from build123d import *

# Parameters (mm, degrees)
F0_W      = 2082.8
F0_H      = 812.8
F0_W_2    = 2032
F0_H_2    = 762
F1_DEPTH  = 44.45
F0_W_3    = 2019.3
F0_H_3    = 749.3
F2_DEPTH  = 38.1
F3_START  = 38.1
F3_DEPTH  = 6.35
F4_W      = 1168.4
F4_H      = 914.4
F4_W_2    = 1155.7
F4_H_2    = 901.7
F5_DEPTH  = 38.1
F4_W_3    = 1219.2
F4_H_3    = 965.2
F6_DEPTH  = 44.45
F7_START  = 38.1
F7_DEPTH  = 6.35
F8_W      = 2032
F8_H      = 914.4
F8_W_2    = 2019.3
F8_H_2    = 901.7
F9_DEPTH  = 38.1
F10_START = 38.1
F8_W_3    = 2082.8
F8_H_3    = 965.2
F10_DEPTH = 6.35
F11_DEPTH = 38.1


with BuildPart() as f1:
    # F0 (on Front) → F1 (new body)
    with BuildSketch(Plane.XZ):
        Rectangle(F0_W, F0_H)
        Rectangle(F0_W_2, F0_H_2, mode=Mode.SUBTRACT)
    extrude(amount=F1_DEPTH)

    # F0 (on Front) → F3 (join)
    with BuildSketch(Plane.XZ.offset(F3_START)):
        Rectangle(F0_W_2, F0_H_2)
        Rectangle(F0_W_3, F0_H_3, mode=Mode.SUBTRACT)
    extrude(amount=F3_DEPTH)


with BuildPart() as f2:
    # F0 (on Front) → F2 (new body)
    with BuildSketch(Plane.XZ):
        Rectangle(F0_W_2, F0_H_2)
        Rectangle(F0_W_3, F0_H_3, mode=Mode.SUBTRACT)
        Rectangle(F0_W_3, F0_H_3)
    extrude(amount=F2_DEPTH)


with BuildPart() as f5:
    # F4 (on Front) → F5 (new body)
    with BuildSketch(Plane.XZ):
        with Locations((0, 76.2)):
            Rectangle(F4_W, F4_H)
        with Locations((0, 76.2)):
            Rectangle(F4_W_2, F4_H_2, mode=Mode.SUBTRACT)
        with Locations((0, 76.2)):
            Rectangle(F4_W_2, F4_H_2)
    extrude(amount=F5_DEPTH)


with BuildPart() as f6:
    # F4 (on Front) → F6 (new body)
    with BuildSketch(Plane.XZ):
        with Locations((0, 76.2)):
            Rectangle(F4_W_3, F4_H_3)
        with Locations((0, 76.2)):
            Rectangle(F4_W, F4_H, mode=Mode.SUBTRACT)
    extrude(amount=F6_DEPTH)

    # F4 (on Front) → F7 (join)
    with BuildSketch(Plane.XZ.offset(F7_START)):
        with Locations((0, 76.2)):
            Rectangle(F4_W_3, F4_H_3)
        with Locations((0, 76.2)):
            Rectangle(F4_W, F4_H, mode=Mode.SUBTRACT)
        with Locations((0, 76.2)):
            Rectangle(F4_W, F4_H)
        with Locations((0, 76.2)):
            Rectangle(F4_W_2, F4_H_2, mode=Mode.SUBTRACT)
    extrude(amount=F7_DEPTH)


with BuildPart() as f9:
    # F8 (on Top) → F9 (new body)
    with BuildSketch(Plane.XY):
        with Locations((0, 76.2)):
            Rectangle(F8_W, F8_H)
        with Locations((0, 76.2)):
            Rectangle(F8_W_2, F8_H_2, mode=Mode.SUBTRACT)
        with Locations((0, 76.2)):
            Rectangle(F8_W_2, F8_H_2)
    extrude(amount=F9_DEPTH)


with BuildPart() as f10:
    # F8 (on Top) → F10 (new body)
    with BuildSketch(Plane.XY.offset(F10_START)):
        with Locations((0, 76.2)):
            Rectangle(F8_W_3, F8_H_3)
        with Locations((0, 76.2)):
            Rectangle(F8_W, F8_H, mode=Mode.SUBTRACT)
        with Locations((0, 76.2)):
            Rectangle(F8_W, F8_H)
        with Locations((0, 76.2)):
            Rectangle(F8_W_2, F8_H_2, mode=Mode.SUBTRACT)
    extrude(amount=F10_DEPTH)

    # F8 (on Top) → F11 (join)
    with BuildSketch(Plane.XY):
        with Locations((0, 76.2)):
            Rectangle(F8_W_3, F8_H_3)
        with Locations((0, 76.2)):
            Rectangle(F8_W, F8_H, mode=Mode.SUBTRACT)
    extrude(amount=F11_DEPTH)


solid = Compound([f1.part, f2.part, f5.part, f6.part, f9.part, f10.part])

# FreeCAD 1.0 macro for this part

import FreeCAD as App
import Part
import Sketcher
from FreeCAD import Vector
Q = App.Units.Quantity

doc = App.newDocument("Part")
body = doc.addObject("PartDesign::Body", "Body")

# Sketch on XZ plane
sketch1 = body.newObject("Sketcher::SketchObject", "Sketch")
sketch1.AttachmentSupport = (doc.getObject("XZ_Plane"), [""])
sketch1.MapMode = "FlatFace"
sketch1.addGeometry([
    Part.LineSegment(Vector(-1041, 406, 0), Vector(-1041, -406, 0)),  # 0
    Part.LineSegment(Vector(-1041, -406, 0), Vector(1041, -406, 0)),  # 1
    Part.LineSegment(Vector(1041, -406, 0), Vector(1041, 406, 0)),  # 2
    Part.LineSegment(Vector(1041, 406, 0), Vector(-1041, 406, 0)),  # 3
    Part.LineSegment(Vector(1016, -381, 0), Vector(-1016, -381, 0)),  # 4
    Part.LineSegment(Vector(-1016, -381, 0), Vector(-1016, 381, 0)),  # 5
    Part.LineSegment(Vector(-1016, 381, 0), Vector(1016, 381, 0)),  # 6
    Part.LineSegment(Vector(1016, 381, 0), Vector(1016, -381, 0)),  # 7
], False)
sketch1.addConstraint([
    Sketcher.Constraint("Coincident", 0, 2, 1, 1),
    Sketcher.Constraint("Coincident", 1, 2, 2, 1),
    Sketcher.Constraint("Coincident", 2, 2, 3, 1),
    Sketcher.Constraint("Coincident", 3, 2, 0, 1),
    Sketcher.Constraint("Coincident", 4, 2, 5, 1),
    Sketcher.Constraint("Coincident", 5, 2, 6, 1),
    Sketcher.Constraint("Coincident", 6, 2, 7, 1),
    Sketcher.Constraint("Coincident", 7, 2, 4, 1),
    Sketcher.Constraint("Vertical", 0),
    Sketcher.Constraint("Horizontal", 1),
    Sketcher.Constraint("Vertical", 2),
    Sketcher.Constraint("Horizontal", 3),
    Sketcher.Constraint("Horizontal", 4),
    Sketcher.Constraint("Vertical", 5),
    Sketcher.Constraint("Horizontal", 6),
    Sketcher.Constraint("Vertical", 7),
    Sketcher.Constraint("Symmetric", 0, 2, 2, 2, -1, 1),
    Sketcher.Constraint("Symmetric", 4, 2, 6, 2, -1, 1),
    Sketcher.Constraint("DistanceX", 1, 1, 1, 2, Q("82 in")),
    Sketcher.Constraint("DistanceX", 4, 2, 4, 1, Q("80 in")),
    Sketcher.Constraint("DistanceY", 0, 2, 0, 1, Q("32 in")),
    Sketcher.Constraint("DistanceY", 5, 1, 5, 2, Q("30 in")),
])
pad1 = body.newObject("PartDesign::Pad", "Pad")
pad1.Profile = sketch1
pad1.Length = Q("1.75 in")

# Sketch on XZ plane
sketch2 = body.newObject("Sketcher::SketchObject", "Sketch001")
sketch2.AttachmentSupport = (doc.getObject("XZ_Plane"), [""])
sketch2.MapMode = "FlatFace"
sketch2.AttachmentOffset = App.Placement(Vector(0, 0, 1.5 * 25.4), App.Rotation())
sketch2.addGeometry([
    Part.LineSegment(Vector(-1016, 381, 0), Vector(-1016, -381, 0)),  # 0
    Part.LineSegment(Vector(-1016, -381, 0), Vector(1016, -381, 0)),  # 1
    Part.LineSegment(Vector(1016, -381, 0), Vector(1016, 381, 0)),  # 2
    Part.LineSegment(Vector(1016, 381, 0), Vector(-1016, 381, 0)),  # 3
    Part.LineSegment(Vector(1010, -375, 0), Vector(-1010, -375, 0)),  # 4
    Part.LineSegment(Vector(-1010, -375, 0), Vector(-1010, 375, 0)),  # 5
    Part.LineSegment(Vector(-1010, 375, 0), Vector(1010, 375, 0)),  # 6
    Part.LineSegment(Vector(1010, 375, 0), Vector(1010, -375, 0)),  # 7
], False)
sketch2.addConstraint([
    Sketcher.Constraint("Coincident", 0, 2, 1, 1),
    Sketcher.Constraint("Coincident", 1, 2, 2, 1),
    Sketcher.Constraint("Coincident", 2, 2, 3, 1),
    Sketcher.Constraint("Coincident", 3, 2, 0, 1),
    Sketcher.Constraint("Coincident", 4, 2, 5, 1),
    Sketcher.Constraint("Coincident", 5, 2, 6, 1),
    Sketcher.Constraint("Coincident", 6, 2, 7, 1),
    Sketcher.Constraint("Coincident", 7, 2, 4, 1),
    Sketcher.Constraint("Vertical", 0),
    Sketcher.Constraint("Horizontal", 1),
    Sketcher.Constraint("Vertical", 2),
    Sketcher.Constraint("Horizontal", 3),
    Sketcher.Constraint("Horizontal", 4),
    Sketcher.Constraint("Vertical", 5),
    Sketcher.Constraint("Horizontal", 6),
    Sketcher.Constraint("Vertical", 7),
    Sketcher.Constraint("Symmetric", 0, 2, 2, 2, -1, 1),
    Sketcher.Constraint("Symmetric", 4, 2, 6, 2, -1, 1),
    Sketcher.Constraint("DistanceX", 1, 1, 1, 2, Q("80 in")),
    Sketcher.Constraint("DistanceY", 0, 2, 0, 1, Q("30 in")),
    Sketcher.Constraint("DistanceX", 4, 2, 4, 1, Q("79.5 in")),
    Sketcher.Constraint("DistanceY", 5, 1, 5, 2, Q("29.5 in")),
])
pad2 = body.newObject("PartDesign::Pad", "Pad001")
pad2.Profile = sketch2
pad2.Length = Q("0.25 in")
body2 = doc.addObject("PartDesign::Body", "Body001")

# Sketch on XZ plane
sketch3 = body2.newObject("Sketcher::SketchObject", "Sketch002")
sketch3.AttachmentSupport = (doc.getObject("XZ_Plane001"), [""])
sketch3.MapMode = "FlatFace"
sketch3.addGeometry([
    Part.LineSegment(Vector(-1016, 381, 0), Vector(-1016, -381, 0)),
    Part.LineSegment(Vector(-1016, -381, 0), Vector(1016, -381, 0)),
    Part.LineSegment(Vector(1016, -381, 0), Vector(1016, 381, 0)),
    Part.LineSegment(Vector(1016, 381, 0), Vector(-1016, 381, 0)),
], False)
sketch3.addConstraint([
    Sketcher.Constraint("Coincident", 0, 2, 1, 1),
    Sketcher.Constraint("Coincident", 1, 2, 2, 1),
    Sketcher.Constraint("Coincident", 2, 2, 3, 1),
    Sketcher.Constraint("Coincident", 3, 2, 0, 1),
    Sketcher.Constraint("Vertical", 0),
    Sketcher.Constraint("Horizontal", 1),
    Sketcher.Constraint("Vertical", 2),
    Sketcher.Constraint("Horizontal", 3),
    Sketcher.Constraint("Symmetric", 0, 2, 2, 2, -1, 1),
    Sketcher.Constraint("DistanceX", 1, 1, 1, 2, Q("80 in")),
    Sketcher.Constraint("DistanceY", 0, 2, 0, 1, Q("30 in")),
])
pad3 = body2.newObject("PartDesign::Pad", "Pad002")
pad3.Profile = sketch3
pad3.Length = Q("1.5 in")
body3 = doc.addObject("PartDesign::Body", "Body002")

# Sketch on XZ plane
sketch4 = body3.newObject("Sketcher::SketchObject", "Sketch003")
sketch4.AttachmentSupport = (doc.getObject("XZ_Plane002"), [""])
sketch4.MapMode = "FlatFace"
sketch4.addGeometry([
    Part.LineSegment(Vector(-584, 533, 0), Vector(-584, -381, 0)),
    Part.LineSegment(Vector(-584, -381, 0), Vector(584, -381, 0)),
    Part.LineSegment(Vector(584, -381, 0), Vector(584, 533, 0)),
    Part.LineSegment(Vector(584, 533, 0), Vector(-584, 533, 0)),
], False)
sketch4.addConstraint([
    Sketcher.Constraint("Coincident", 0, 2, 1, 1),
    Sketcher.Constraint("Coincident", 1, 2, 2, 1),
    Sketcher.Constraint("Coincident", 2, 2, 3, 1),
    Sketcher.Constraint("Coincident", 3, 2, 0, 1),
    Sketcher.Constraint("Vertical", 0),
    Sketcher.Constraint("Horizontal", 1),
    Sketcher.Constraint("Vertical", 2),
    Sketcher.Constraint("Horizontal", 3),
    Sketcher.Constraint("DistanceX", 1, 1, 1, 2, Q("46 in")),
    Sketcher.Constraint("DistanceY", 0, 2, 0, 1, Q("36 in")),
    Sketcher.Constraint("DistanceX", 0, 2, -1, 1, Q("23 in")),
    Sketcher.Constraint("DistanceY", 0, 2, -1, 1, Q("15 in")),
])
pad4 = body3.newObject("PartDesign::Pad", "Pad003")
pad4.Profile = sketch4
pad4.Length = Q("1.5 in")
body4 = doc.addObject("PartDesign::Body", "Body003")

# Sketch on XZ plane
sketch5 = body4.newObject("Sketcher::SketchObject", "Sketch004")
sketch5.AttachmentSupport = (doc.getObject("XZ_Plane003"), [""])
sketch5.MapMode = "FlatFace"
sketch5.addGeometry([
    Part.LineSegment(Vector(-610, 559, 0), Vector(-610, -406, 0)),  # 0
    Part.LineSegment(Vector(-610, -406, 0), Vector(610, -406, 0)),  # 1
    Part.LineSegment(Vector(610, -406, 0), Vector(610, 559, 0)),  # 2
    Part.LineSegment(Vector(610, 559, 0), Vector(-610, 559, 0)),  # 3
    Part.LineSegment(Vector(584, -381, 0), Vector(-584, -381, 0)),  # 4
    Part.LineSegment(Vector(-584, -381, 0), Vector(-584, 533, 0)),  # 5
    Part.LineSegment(Vector(-584, 533, 0), Vector(584, 533, 0)),  # 6
    Part.LineSegment(Vector(584, 533, 0), Vector(584, -381, 0)),  # 7
], False)
sketch5.addConstraint([
    Sketcher.Constraint("Coincident", 0, 2, 1, 1),
    Sketcher.Constraint("Coincident", 1, 2, 2, 1),
    Sketcher.Constraint("Coincident", 2, 2, 3, 1),
    Sketcher.Constraint("Coincident", 3, 2, 0, 1),
    Sketcher.Constraint("Coincident", 4, 2, 5, 1),
    Sketcher.Constraint("Coincident", 5, 2, 6, 1),
    Sketcher.Constraint("Coincident", 6, 2, 7, 1),
    Sketcher.Constraint("Coincident", 7, 2, 4, 1),
    Sketcher.Constraint("Vertical", 0),
    Sketcher.Constraint("Horizontal", 1),
    Sketcher.Constraint("Vertical", 2),
    Sketcher.Constraint("Horizontal", 3),
    Sketcher.Constraint("Horizontal", 4),
    Sketcher.Constraint("Vertical", 5),
    Sketcher.Constraint("Horizontal", 6),
    Sketcher.Constraint("Vertical", 7),
    Sketcher.Constraint("DistanceX", 1, 1, 1, 2, Q("48 in")),
    Sketcher.Constraint("DistanceX", 4, 2, 4, 1, Q("46 in")),
    Sketcher.Constraint("DistanceY", 0, 2, 0, 1, Q("38 in")),
    Sketcher.Constraint("DistanceY", 5, 1, 5, 2, Q("36 in")),
    Sketcher.Constraint("DistanceX", 0, 2, -1, 1, Q("24 in")),
    Sketcher.Constraint("DistanceY", 0, 2, -1, 1, Q("16 in")),
    Sketcher.Constraint("DistanceX", 4, 2, -1, 1, Q("23 in")),
    Sketcher.Constraint("DistanceY", 4, 2, -1, 1, Q("15 in")),
])
pad5 = body4.newObject("PartDesign::Pad", "Pad004")
pad5.Profile = sketch5
pad5.Length = Q("1.75 in")

# Sketch on XZ plane
sketch6 = body4.newObject("Sketcher::SketchObject", "Sketch005")
sketch6.AttachmentSupport = (doc.getObject("XZ_Plane003"), [""])
sketch6.MapMode = "FlatFace"
sketch6.AttachmentOffset = App.Placement(Vector(0, 0, 1.5 * 25.4), App.Rotation())
sketch6.addGeometry([
    Part.LineSegment(Vector(-610, 559, 0), Vector(-610, -406, 0)),  # 0
    Part.LineSegment(Vector(-610, -406, 0), Vector(610, -406, 0)),  # 1
    Part.LineSegment(Vector(610, -406, 0), Vector(610, 559, 0)),  # 2
    Part.LineSegment(Vector(610, 559, 0), Vector(-610, 559, 0)),  # 3
    Part.LineSegment(Vector(578, -375, 0), Vector(-578, -375, 0)),  # 4
    Part.LineSegment(Vector(-578, -375, 0), Vector(-578, 527, 0)),  # 5
    Part.LineSegment(Vector(-578, 527, 0), Vector(578, 527, 0)),  # 6
    Part.LineSegment(Vector(578, 527, 0), Vector(578, -375, 0)),  # 7
], False)
sketch6.addConstraint([
    Sketcher.Constraint("Coincident", 0, 2, 1, 1),
    Sketcher.Constraint("Coincident", 1, 2, 2, 1),
    Sketcher.Constraint("Coincident", 2, 2, 3, 1),
    Sketcher.Constraint("Coincident", 3, 2, 0, 1),
    Sketcher.Constraint("Coincident", 4, 2, 5, 1),
    Sketcher.Constraint("Coincident", 5, 2, 6, 1),
    Sketcher.Constraint("Coincident", 6, 2, 7, 1),
    Sketcher.Constraint("Coincident", 7, 2, 4, 1),
    Sketcher.Constraint("Vertical", 0),
    Sketcher.Constraint("Horizontal", 1),
    Sketcher.Constraint("Vertical", 2),
    Sketcher.Constraint("Horizontal", 3),
    Sketcher.Constraint("Horizontal", 4),
    Sketcher.Constraint("Vertical", 5),
    Sketcher.Constraint("Horizontal", 6),
    Sketcher.Constraint("Vertical", 7),
    Sketcher.Constraint("DistanceX", 1, 1, 1, 2, Q("48 in")),
    Sketcher.Constraint("DistanceY", 0, 2, 0, 1, Q("38 in")),
    Sketcher.Constraint("DistanceX", 4, 2, 4, 1, Q("45.5 in")),
    Sketcher.Constraint("DistanceY", 5, 1, 5, 2, Q("35.5 in")),
    Sketcher.Constraint("DistanceX", 0, 2, -1, 1, Q("24 in")),
    Sketcher.Constraint("DistanceY", 0, 2, -1, 1, Q("16 in")),
    Sketcher.Constraint("DistanceX", 4, 2, -1, 1, Q("22.75 in")),
    Sketcher.Constraint("DistanceY", 4, 2, -1, 1, Q("14.75 in")),
])
pad6 = body4.newObject("PartDesign::Pad", "Pad005")
pad6.Profile = sketch6
pad6.Length = Q("0.25 in")
body5 = doc.addObject("PartDesign::Body", "Body004")

# Sketch on XY plane
sketch7 = body5.newObject("Sketcher::SketchObject", "Sketch006")
sketch7.AttachmentSupport = (doc.getObject("XY_Plane004"), [""])
sketch7.MapMode = "FlatFace"
sketch7.addGeometry([
    Part.LineSegment(Vector(-1016, 533, 0), Vector(-1016, -381, 0)),
    Part.LineSegment(Vector(-1016, -381, 0), Vector(1016, -381, 0)),
    Part.LineSegment(Vector(1016, -381, 0), Vector(1016, 533, 0)),
    Part.LineSegment(Vector(1016, 533, 0), Vector(-1016, 533, 0)),
], False)
sketch7.addConstraint([
    Sketcher.Constraint("Coincident", 0, 2, 1, 1),
    Sketcher.Constraint("Coincident", 1, 2, 2, 1),
    Sketcher.Constraint("Coincident", 2, 2, 3, 1),
    Sketcher.Constraint("Coincident", 3, 2, 0, 1),
    Sketcher.Constraint("Vertical", 0),
    Sketcher.Constraint("Horizontal", 1),
    Sketcher.Constraint("Vertical", 2),
    Sketcher.Constraint("Horizontal", 3),
    Sketcher.Constraint("DistanceX", 1, 1, 1, 2, Q("80 in")),
    Sketcher.Constraint("DistanceY", 0, 2, 0, 1, Q("36 in")),
    Sketcher.Constraint("DistanceX", 0, 2, -1, 1, Q("40 in")),
    Sketcher.Constraint("DistanceY", 0, 2, -1, 1, Q("15 in")),
])
pad7 = body5.newObject("PartDesign::Pad", "Pad006")
pad7.Profile = sketch7
pad7.Length = Q("1.5 in")
body6 = doc.addObject("PartDesign::Body", "Body005")

# Sketch on XY plane
sketch8 = body6.newObject("Sketcher::SketchObject", "Sketch007")
sketch8.AttachmentSupport = (doc.getObject("XY_Plane005"), [""])
sketch8.MapMode = "FlatFace"
sketch8.AttachmentOffset = App.Placement(Vector(0, 0, 1.5 * 25.4), App.Rotation())
sketch8.addGeometry([
    Part.LineSegment(Vector(-1041, 559, 0), Vector(-1041, -406, 0)),  # 0
    Part.LineSegment(Vector(-1041, -406, 0), Vector(1041, -406, 0)),  # 1
    Part.LineSegment(Vector(1041, -406, 0), Vector(1041, 559, 0)),  # 2
    Part.LineSegment(Vector(1041, 559, 0), Vector(-1041, 559, 0)),  # 3
    Part.LineSegment(Vector(1010, -375, 0), Vector(-1010, -375, 0)),  # 4
    Part.LineSegment(Vector(-1010, -375, 0), Vector(-1010, 527, 0)),  # 5
    Part.LineSegment(Vector(-1010, 527, 0), Vector(1010, 527, 0)),  # 6
    Part.LineSegment(Vector(1010, 527, 0), Vector(1010, -375, 0)),  # 7
], False)
sketch8.addConstraint([
    Sketcher.Constraint("Coincident", 0, 2, 1, 1),
    Sketcher.Constraint("Coincident", 1, 2, 2, 1),
    Sketcher.Constraint("Coincident", 2, 2, 3, 1),
    Sketcher.Constraint("Coincident", 3, 2, 0, 1),
    Sketcher.Constraint("Coincident", 4, 2, 5, 1),
    Sketcher.Constraint("Coincident", 5, 2, 6, 1),
    Sketcher.Constraint("Coincident", 6, 2, 7, 1),
    Sketcher.Constraint("Coincident", 7, 2, 4, 1),
    Sketcher.Constraint("Vertical", 0),
    Sketcher.Constraint("Horizontal", 1),
    Sketcher.Constraint("Vertical", 2),
    Sketcher.Constraint("Horizontal", 3),
    Sketcher.Constraint("Horizontal", 4),
    Sketcher.Constraint("Vertical", 5),
    Sketcher.Constraint("Horizontal", 6),
    Sketcher.Constraint("Vertical", 7),
    Sketcher.Constraint("DistanceX", 1, 1, 1, 2, Q("82 in")),
    Sketcher.Constraint("DistanceY", 0, 2, 0, 1, Q("38 in")),
    Sketcher.Constraint("DistanceX", 4, 2, 4, 1, Q("79.5 in")),
    Sketcher.Constraint("DistanceY", 5, 1, 5, 2, Q("35.5 in")),
    Sketcher.Constraint("DistanceX", 0, 2, -1, 1, Q("41 in")),
    Sketcher.Constraint("DistanceY", 0, 2, -1, 1, Q("16 in")),
    Sketcher.Constraint("DistanceX", 4, 2, -1, 1, Q("39.75 in")),
    Sketcher.Constraint("DistanceY", 4, 2, -1, 1, Q("14.75 in")),
])
pad8 = body6.newObject("PartDesign::Pad", "Pad007")
pad8.Profile = sketch8
pad8.Length = Q("0.25 in")

# Sketch on XY plane
sketch9 = body6.newObject("Sketcher::SketchObject", "Sketch008")
sketch9.AttachmentSupport = (doc.getObject("XY_Plane005"), [""])
sketch9.MapMode = "FlatFace"
sketch9.addGeometry([
    Part.LineSegment(Vector(-1041, 559, 0), Vector(-1041, -406, 0)),  # 0
    Part.LineSegment(Vector(-1041, -406, 0), Vector(1041, -406, 0)),  # 1
    Part.LineSegment(Vector(1041, -406, 0), Vector(1041, 559, 0)),  # 2
    Part.LineSegment(Vector(1041, 559, 0), Vector(-1041, 559, 0)),  # 3
    Part.LineSegment(Vector(1016, -381, 0), Vector(-1016, -381, 0)),  # 4
    Part.LineSegment(Vector(-1016, -381, 0), Vector(-1016, 533, 0)),  # 5
    Part.LineSegment(Vector(-1016, 533, 0), Vector(1016, 533, 0)),  # 6
    Part.LineSegment(Vector(1016, 533, 0), Vector(1016, -381, 0)),  # 7
], False)
sketch9.addConstraint([
    Sketcher.Constraint("Coincident", 0, 2, 1, 1),
    Sketcher.Constraint("Coincident", 1, 2, 2, 1),
    Sketcher.Constraint("Coincident", 2, 2, 3, 1),
    Sketcher.Constraint("Coincident", 3, 2, 0, 1),
    Sketcher.Constraint("Coincident", 4, 2, 5, 1),
    Sketcher.Constraint("Coincident", 5, 2, 6, 1),
    Sketcher.Constraint("Coincident", 6, 2, 7, 1),
    Sketcher.Constraint("Coincident", 7, 2, 4, 1),
    Sketcher.Constraint("Vertical", 0),
    Sketcher.Constraint("Horizontal", 1),
    Sketcher.Constraint("Vertical", 2),
    Sketcher.Constraint("Horizontal", 3),
    Sketcher.Constraint("Horizontal", 4),
    Sketcher.Constraint("Vertical", 5),
    Sketcher.Constraint("Horizontal", 6),
    Sketcher.Constraint("Vertical", 7),
    Sketcher.Constraint("DistanceX", 1, 1, 1, 2, Q("82 in")),
    Sketcher.Constraint("DistanceX", 4, 2, 4, 1, Q("80 in")),
    Sketcher.Constraint("DistanceY", 0, 2, 0, 1, Q("38 in")),
    Sketcher.Constraint("DistanceY", 5, 1, 5, 2, Q("36 in")),
    Sketcher.Constraint("DistanceX", 0, 2, -1, 1, Q("41 in")),
    Sketcher.Constraint("DistanceY", 0, 2, -1, 1, Q("16 in")),
    Sketcher.Constraint("DistanceX", 4, 2, -1, 1, Q("40 in")),
    Sketcher.Constraint("DistanceY", 4, 2, -1, 1, Q("15 in")),
])
pad9 = body6.newObject("PartDesign::Pad", "Pad008")
pad9.Profile = sketch9
pad9.Length = Q("1.5 in")

doc.recompute()
